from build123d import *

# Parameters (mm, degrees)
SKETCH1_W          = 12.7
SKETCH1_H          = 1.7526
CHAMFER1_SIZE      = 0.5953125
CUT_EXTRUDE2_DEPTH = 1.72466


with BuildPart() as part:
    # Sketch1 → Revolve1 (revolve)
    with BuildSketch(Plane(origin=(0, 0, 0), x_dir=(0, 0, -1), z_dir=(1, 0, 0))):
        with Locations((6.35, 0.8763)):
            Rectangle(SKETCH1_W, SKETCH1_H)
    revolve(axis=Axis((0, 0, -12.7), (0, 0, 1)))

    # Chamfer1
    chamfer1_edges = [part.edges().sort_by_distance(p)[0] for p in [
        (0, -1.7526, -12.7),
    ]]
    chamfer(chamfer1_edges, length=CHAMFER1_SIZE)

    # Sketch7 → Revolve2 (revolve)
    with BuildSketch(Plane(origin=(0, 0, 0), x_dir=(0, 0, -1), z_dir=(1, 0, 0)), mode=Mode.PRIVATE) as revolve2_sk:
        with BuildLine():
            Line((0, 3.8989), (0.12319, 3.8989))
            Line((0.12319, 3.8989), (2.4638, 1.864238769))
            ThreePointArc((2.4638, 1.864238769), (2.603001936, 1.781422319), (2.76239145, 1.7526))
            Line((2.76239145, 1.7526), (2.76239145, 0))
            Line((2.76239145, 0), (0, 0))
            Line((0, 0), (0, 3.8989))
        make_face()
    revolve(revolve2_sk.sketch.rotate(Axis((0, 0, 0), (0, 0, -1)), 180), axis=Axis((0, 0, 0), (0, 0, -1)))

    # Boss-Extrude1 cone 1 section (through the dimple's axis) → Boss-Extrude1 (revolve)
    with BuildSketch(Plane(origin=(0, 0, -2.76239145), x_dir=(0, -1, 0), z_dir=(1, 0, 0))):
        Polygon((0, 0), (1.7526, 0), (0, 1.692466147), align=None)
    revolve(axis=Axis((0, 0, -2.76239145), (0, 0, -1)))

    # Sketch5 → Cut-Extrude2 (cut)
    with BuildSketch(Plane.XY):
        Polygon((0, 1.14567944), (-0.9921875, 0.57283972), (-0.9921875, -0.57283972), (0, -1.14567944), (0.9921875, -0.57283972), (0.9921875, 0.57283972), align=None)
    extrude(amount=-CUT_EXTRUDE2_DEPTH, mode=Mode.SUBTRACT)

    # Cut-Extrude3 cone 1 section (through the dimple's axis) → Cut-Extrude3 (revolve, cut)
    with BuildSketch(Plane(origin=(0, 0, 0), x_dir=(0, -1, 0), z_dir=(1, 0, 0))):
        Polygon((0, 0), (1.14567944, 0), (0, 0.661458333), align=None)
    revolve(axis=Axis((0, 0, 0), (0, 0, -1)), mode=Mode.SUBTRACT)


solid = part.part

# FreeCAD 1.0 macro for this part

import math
import FreeCAD as App
import Part
import Sketcher
Q = App.Units.Quantity


def edges_at(feature, points):
    """Names of the edges that pass closest to the given points."""
    edges = feature.Shape.Edges
    near = lambda p: min(range(len(edges)), key=lambda i: edges[i].distToShape(Part.Vertex(*p))[0])
    return sorted({f"Edge{near(p) + 1}" for p in points})


def add_polygon(sketch, points):
    """Adds a closed chain of lines whose ends are joined by coincident constraints."""
    first, n = sketch.GeometryCount, len(points)
    for a, b in zip(points, points[1:] + points[:1]):
        sketch.addGeometry(Part.LineSegment(App.Vector(*a, 0), App.Vector(*b, 0)), False)
    for i in range(n):
        sketch.addConstraint(Sketcher.Constraint("Coincident", first + i, 2, first + (i + 1) % n, 1))

doc = App.newDocument("Part")
body = doc.addObject("PartDesign::Body", "Body")

# Sketch on YZ plane
sketch1 = body.newObject("Sketcher::SketchObject", "Sketch")
sketch1.AttachmentSupport = (doc.getObject("YZ_Plane"), [""])
sketch1.MapMode = "FlatFace"
add_polygon(sketch1, [(1.7526, 0), (0, 0), (0, -12.7), (1.7526, -12.7)])  # lines 0-3
sketch1.addConstraint([
    Sketcher.Constraint("Horizontal", 0),
    Sketcher.Constraint("Vertical", 1),
    Sketcher.Constraint("Horizontal", 2),
    Sketcher.Constraint("Vertical", 3),
    Sketcher.Constraint("Coincident", 0, 2, -1, 1),
    Sketcher.Constraint("DistanceY", 1, 2, 1, 1, Q("0.5 in")),
    Sketcher.Constraint("DistanceX", 0, 2, 0, 1, Q("0.069 in")),
])
revolution = body.newObject("PartDesign::Revolution", "Revolution")
revolution.Profile = sketch1
revolution.ReferenceAxis = (sketch1, ["V_Axis"])
revolution.Angle = 360
doc.recompute()

chamfer = body.newObject("PartDesign::Chamfer", "Chamfer")
chamfer.Base = (revolution, edges_at(revolution, [(0, -1.753, -12.7)]))
chamfer.Size = 0.595313

# Sketch on YZ plane
sketch2 = body.newObject("Sketcher::SketchObject", "Sketch001")
sketch2.AttachmentSupport = (doc.getObject("YZ_Plane"), [""])
sketch2.MapMode = "FlatFace"
sketch2.addGeometry([
    Part.LineSegment(App.Vector(3.8989, -0.12319, 0), App.Vector(3.8989, 0, 0)),  # 0
    Part.LineSegment(App.Vector(3.8989, 0, 0), App.Vector(0, 0, 0)),  # 1
    Part.LineSegment(App.Vector(0, 0, 0), App.Vector(0, -2.762391, 0)),  # 2
    Part.LineSegment(App.Vector(0, -2.762391, 0), App.Vector(1.7526, -2.762391, 0)),  # 3
    Part.ArcOfCircle(Part.Circle(App.Vector(2.207729, -2.762391, 0), App.Vector(0, 0, 1), 0.455129), math.radians(139), math.radians(180)),  # 4
    Part.LineSegment(App.Vector(1.864239, -2.4638, 0), App.Vector(3.8989, -0.12319, 0)),  # 5
], False)
sketch2.addConstraint([
    Sketcher.Constraint("Coincident", 0, 2, 1, 1),
    Sketcher.Constraint("Coincident", 1, 2, 2, 1),
    Sketcher.Constraint("Coincident", 2, 2, 3, 1),
    Sketcher.Constraint("Coincident", 3, 2, 4, 2),
    Sketcher.Constraint("Tangent", 4, 1, 5, 1),
    Sketcher.Constraint("Coincident", 5, 2, 0, 1),
    Sketcher.Constraint("Vertical", 0),
    Sketcher.Constraint("Horizontal", 1),
    Sketcher.Constraint("Vertical", 2),
    Sketcher.Constraint("Horizontal", 3),
    Sketcher.Constraint("Coincident", 1, 2, -1, 1),
    Sketcher.Constraint("Horizontal", 4, 3, 2, 2),
    Sketcher.Constraint("Angle", 5, Q("49 deg")),
    Sketcher.Constraint("DistanceX", 3, 1, 3, 2, Q("0.069 in")),
    Sketcher.Constraint("DistanceX", 1, 2, 1, 1, Q("0.1535 in")),
    Sketcher.Constraint("DistanceY", 4, 1, -1, 1, Q("0.097 in")),
    Sketcher.Constraint("Radius", 4, Q("0.455129 mm")),
])
revolution2 = body.newObject("PartDesign::Revolution", "Revolution001")
revolution2.Profile = sketch2
revolution2.ReferenceAxis = (sketch2, ["V_Axis"])
revolution2.Angle = 360

# Sketch on YZ plane
sketch3 = body.newObject("Sketcher::SketchObject", "Sketch002")
sketch3.AttachmentSupport = (doc.getObject("YZ_Plane"), [""])
sketch3.MapMode = "FlatFace"
add_polygon(sketch3, [(0, -2.762391), (-1.7526, -2.762391), (0, -4.454858)])  # lines 0-2
sketch3.addConstraint([
    Sketcher.Constraint("Horizontal", 0),
    Sketcher.Constraint("Vertical", 2),
    Sketcher.Constraint("PointOnObject", 1, 2, -2),
    Sketcher.Constraint("Angle", 1, Q("-44 deg")),
    Sketcher.Constraint("DistanceX", 0, 2, 0, 1, Q("0.069 in")),
    Sketcher.Constraint("DistanceY", 0, 2, -1, 1, Q("2.762391 mm")),
])
revolution3 = body.newObject("PartDesign::Revolution", "Revolution002")
revolution3.Profile = sketch3
revolution3.ReferenceAxis = (sketch3, ["V_Axis"])
revolution3.Angle = 360

# Sketch on XY plane
sketch4 = body.newObject("Sketcher::SketchObject", "Sketch003")
sketch4.AttachmentSupport = (doc.getObject("XY_Plane"), [""])
sketch4.MapMode = "FlatFace"
add_polygon(sketch4, [(0, 1.145679), (-0.992188, 0.57284), (-0.992188, -0.57284), (0, -1.145679), (0.992188, -0.57284), (0.992188, 0.57284)])  # lines 0-5
sketch4.addConstraint([
    Sketcher.Constraint("Vertical", 1),
    Sketcher.Constraint("Vertical", 4),
    Sketcher.Constraint("Symmetric", 0, 2, 3, 2, -1, 1),
    Sketcher.Constraint("Symmetric", 2, 2, 5, 2, -1, 1),
    Sketcher.Constraint("PointOnObject", 2, 2, -2),
    Sketcher.Constraint("Parallel", 2, 5),
    Sketcher.Constraint("Horizontal", 1, 2, 3, 2),
    Sketcher.Constraint("Angle", 0, Q("-150 deg")),
    Sketcher.Constraint("DistanceX", 1, 2, 3, 2, Q("0.078125 in")),
    Sketcher.Constraint("DistanceY", 1, 2, 1, 1, Q("1.145679 mm")),
])
pocket1 = body.newObject("PartDesign::Pocket", "Pocket")
pocket1.Profile = sketch4
pocket1.Length = Q("0.0679 in")

# Sketch on YZ plane
sketch5 = body.newObject("Sketcher::SketchObject", "Sketch004")
sketch5.AttachmentSupport = (doc.getObject("YZ_Plane"), [""])
sketch5.MapMode = "FlatFace"
add_polygon(sketch5, [(0, 0), (-1.145679, 0), (0, -0.661458)])  # lines 0-2
sketch5.addConstraint([
    Sketcher.Constraint("Horizontal", 0),
    Sketcher.Constraint("Vertical", 2),
    Sketcher.Constraint("Coincident", 2, 2, -1, 1),
    Sketcher.Constraint("Angle", 1, Q("-30 deg")),
    Sketcher.Constraint("DistanceX", 0, 2, 0, 1, Q("1.145679 mm")),
])
groove = body.newObject("PartDesign::Groove", "Groove")
groove.Profile = sketch5
groove.ReferenceAxis = (sketch5, ["V_Axis"])
groove.Angle = 360

doc.recompute()
